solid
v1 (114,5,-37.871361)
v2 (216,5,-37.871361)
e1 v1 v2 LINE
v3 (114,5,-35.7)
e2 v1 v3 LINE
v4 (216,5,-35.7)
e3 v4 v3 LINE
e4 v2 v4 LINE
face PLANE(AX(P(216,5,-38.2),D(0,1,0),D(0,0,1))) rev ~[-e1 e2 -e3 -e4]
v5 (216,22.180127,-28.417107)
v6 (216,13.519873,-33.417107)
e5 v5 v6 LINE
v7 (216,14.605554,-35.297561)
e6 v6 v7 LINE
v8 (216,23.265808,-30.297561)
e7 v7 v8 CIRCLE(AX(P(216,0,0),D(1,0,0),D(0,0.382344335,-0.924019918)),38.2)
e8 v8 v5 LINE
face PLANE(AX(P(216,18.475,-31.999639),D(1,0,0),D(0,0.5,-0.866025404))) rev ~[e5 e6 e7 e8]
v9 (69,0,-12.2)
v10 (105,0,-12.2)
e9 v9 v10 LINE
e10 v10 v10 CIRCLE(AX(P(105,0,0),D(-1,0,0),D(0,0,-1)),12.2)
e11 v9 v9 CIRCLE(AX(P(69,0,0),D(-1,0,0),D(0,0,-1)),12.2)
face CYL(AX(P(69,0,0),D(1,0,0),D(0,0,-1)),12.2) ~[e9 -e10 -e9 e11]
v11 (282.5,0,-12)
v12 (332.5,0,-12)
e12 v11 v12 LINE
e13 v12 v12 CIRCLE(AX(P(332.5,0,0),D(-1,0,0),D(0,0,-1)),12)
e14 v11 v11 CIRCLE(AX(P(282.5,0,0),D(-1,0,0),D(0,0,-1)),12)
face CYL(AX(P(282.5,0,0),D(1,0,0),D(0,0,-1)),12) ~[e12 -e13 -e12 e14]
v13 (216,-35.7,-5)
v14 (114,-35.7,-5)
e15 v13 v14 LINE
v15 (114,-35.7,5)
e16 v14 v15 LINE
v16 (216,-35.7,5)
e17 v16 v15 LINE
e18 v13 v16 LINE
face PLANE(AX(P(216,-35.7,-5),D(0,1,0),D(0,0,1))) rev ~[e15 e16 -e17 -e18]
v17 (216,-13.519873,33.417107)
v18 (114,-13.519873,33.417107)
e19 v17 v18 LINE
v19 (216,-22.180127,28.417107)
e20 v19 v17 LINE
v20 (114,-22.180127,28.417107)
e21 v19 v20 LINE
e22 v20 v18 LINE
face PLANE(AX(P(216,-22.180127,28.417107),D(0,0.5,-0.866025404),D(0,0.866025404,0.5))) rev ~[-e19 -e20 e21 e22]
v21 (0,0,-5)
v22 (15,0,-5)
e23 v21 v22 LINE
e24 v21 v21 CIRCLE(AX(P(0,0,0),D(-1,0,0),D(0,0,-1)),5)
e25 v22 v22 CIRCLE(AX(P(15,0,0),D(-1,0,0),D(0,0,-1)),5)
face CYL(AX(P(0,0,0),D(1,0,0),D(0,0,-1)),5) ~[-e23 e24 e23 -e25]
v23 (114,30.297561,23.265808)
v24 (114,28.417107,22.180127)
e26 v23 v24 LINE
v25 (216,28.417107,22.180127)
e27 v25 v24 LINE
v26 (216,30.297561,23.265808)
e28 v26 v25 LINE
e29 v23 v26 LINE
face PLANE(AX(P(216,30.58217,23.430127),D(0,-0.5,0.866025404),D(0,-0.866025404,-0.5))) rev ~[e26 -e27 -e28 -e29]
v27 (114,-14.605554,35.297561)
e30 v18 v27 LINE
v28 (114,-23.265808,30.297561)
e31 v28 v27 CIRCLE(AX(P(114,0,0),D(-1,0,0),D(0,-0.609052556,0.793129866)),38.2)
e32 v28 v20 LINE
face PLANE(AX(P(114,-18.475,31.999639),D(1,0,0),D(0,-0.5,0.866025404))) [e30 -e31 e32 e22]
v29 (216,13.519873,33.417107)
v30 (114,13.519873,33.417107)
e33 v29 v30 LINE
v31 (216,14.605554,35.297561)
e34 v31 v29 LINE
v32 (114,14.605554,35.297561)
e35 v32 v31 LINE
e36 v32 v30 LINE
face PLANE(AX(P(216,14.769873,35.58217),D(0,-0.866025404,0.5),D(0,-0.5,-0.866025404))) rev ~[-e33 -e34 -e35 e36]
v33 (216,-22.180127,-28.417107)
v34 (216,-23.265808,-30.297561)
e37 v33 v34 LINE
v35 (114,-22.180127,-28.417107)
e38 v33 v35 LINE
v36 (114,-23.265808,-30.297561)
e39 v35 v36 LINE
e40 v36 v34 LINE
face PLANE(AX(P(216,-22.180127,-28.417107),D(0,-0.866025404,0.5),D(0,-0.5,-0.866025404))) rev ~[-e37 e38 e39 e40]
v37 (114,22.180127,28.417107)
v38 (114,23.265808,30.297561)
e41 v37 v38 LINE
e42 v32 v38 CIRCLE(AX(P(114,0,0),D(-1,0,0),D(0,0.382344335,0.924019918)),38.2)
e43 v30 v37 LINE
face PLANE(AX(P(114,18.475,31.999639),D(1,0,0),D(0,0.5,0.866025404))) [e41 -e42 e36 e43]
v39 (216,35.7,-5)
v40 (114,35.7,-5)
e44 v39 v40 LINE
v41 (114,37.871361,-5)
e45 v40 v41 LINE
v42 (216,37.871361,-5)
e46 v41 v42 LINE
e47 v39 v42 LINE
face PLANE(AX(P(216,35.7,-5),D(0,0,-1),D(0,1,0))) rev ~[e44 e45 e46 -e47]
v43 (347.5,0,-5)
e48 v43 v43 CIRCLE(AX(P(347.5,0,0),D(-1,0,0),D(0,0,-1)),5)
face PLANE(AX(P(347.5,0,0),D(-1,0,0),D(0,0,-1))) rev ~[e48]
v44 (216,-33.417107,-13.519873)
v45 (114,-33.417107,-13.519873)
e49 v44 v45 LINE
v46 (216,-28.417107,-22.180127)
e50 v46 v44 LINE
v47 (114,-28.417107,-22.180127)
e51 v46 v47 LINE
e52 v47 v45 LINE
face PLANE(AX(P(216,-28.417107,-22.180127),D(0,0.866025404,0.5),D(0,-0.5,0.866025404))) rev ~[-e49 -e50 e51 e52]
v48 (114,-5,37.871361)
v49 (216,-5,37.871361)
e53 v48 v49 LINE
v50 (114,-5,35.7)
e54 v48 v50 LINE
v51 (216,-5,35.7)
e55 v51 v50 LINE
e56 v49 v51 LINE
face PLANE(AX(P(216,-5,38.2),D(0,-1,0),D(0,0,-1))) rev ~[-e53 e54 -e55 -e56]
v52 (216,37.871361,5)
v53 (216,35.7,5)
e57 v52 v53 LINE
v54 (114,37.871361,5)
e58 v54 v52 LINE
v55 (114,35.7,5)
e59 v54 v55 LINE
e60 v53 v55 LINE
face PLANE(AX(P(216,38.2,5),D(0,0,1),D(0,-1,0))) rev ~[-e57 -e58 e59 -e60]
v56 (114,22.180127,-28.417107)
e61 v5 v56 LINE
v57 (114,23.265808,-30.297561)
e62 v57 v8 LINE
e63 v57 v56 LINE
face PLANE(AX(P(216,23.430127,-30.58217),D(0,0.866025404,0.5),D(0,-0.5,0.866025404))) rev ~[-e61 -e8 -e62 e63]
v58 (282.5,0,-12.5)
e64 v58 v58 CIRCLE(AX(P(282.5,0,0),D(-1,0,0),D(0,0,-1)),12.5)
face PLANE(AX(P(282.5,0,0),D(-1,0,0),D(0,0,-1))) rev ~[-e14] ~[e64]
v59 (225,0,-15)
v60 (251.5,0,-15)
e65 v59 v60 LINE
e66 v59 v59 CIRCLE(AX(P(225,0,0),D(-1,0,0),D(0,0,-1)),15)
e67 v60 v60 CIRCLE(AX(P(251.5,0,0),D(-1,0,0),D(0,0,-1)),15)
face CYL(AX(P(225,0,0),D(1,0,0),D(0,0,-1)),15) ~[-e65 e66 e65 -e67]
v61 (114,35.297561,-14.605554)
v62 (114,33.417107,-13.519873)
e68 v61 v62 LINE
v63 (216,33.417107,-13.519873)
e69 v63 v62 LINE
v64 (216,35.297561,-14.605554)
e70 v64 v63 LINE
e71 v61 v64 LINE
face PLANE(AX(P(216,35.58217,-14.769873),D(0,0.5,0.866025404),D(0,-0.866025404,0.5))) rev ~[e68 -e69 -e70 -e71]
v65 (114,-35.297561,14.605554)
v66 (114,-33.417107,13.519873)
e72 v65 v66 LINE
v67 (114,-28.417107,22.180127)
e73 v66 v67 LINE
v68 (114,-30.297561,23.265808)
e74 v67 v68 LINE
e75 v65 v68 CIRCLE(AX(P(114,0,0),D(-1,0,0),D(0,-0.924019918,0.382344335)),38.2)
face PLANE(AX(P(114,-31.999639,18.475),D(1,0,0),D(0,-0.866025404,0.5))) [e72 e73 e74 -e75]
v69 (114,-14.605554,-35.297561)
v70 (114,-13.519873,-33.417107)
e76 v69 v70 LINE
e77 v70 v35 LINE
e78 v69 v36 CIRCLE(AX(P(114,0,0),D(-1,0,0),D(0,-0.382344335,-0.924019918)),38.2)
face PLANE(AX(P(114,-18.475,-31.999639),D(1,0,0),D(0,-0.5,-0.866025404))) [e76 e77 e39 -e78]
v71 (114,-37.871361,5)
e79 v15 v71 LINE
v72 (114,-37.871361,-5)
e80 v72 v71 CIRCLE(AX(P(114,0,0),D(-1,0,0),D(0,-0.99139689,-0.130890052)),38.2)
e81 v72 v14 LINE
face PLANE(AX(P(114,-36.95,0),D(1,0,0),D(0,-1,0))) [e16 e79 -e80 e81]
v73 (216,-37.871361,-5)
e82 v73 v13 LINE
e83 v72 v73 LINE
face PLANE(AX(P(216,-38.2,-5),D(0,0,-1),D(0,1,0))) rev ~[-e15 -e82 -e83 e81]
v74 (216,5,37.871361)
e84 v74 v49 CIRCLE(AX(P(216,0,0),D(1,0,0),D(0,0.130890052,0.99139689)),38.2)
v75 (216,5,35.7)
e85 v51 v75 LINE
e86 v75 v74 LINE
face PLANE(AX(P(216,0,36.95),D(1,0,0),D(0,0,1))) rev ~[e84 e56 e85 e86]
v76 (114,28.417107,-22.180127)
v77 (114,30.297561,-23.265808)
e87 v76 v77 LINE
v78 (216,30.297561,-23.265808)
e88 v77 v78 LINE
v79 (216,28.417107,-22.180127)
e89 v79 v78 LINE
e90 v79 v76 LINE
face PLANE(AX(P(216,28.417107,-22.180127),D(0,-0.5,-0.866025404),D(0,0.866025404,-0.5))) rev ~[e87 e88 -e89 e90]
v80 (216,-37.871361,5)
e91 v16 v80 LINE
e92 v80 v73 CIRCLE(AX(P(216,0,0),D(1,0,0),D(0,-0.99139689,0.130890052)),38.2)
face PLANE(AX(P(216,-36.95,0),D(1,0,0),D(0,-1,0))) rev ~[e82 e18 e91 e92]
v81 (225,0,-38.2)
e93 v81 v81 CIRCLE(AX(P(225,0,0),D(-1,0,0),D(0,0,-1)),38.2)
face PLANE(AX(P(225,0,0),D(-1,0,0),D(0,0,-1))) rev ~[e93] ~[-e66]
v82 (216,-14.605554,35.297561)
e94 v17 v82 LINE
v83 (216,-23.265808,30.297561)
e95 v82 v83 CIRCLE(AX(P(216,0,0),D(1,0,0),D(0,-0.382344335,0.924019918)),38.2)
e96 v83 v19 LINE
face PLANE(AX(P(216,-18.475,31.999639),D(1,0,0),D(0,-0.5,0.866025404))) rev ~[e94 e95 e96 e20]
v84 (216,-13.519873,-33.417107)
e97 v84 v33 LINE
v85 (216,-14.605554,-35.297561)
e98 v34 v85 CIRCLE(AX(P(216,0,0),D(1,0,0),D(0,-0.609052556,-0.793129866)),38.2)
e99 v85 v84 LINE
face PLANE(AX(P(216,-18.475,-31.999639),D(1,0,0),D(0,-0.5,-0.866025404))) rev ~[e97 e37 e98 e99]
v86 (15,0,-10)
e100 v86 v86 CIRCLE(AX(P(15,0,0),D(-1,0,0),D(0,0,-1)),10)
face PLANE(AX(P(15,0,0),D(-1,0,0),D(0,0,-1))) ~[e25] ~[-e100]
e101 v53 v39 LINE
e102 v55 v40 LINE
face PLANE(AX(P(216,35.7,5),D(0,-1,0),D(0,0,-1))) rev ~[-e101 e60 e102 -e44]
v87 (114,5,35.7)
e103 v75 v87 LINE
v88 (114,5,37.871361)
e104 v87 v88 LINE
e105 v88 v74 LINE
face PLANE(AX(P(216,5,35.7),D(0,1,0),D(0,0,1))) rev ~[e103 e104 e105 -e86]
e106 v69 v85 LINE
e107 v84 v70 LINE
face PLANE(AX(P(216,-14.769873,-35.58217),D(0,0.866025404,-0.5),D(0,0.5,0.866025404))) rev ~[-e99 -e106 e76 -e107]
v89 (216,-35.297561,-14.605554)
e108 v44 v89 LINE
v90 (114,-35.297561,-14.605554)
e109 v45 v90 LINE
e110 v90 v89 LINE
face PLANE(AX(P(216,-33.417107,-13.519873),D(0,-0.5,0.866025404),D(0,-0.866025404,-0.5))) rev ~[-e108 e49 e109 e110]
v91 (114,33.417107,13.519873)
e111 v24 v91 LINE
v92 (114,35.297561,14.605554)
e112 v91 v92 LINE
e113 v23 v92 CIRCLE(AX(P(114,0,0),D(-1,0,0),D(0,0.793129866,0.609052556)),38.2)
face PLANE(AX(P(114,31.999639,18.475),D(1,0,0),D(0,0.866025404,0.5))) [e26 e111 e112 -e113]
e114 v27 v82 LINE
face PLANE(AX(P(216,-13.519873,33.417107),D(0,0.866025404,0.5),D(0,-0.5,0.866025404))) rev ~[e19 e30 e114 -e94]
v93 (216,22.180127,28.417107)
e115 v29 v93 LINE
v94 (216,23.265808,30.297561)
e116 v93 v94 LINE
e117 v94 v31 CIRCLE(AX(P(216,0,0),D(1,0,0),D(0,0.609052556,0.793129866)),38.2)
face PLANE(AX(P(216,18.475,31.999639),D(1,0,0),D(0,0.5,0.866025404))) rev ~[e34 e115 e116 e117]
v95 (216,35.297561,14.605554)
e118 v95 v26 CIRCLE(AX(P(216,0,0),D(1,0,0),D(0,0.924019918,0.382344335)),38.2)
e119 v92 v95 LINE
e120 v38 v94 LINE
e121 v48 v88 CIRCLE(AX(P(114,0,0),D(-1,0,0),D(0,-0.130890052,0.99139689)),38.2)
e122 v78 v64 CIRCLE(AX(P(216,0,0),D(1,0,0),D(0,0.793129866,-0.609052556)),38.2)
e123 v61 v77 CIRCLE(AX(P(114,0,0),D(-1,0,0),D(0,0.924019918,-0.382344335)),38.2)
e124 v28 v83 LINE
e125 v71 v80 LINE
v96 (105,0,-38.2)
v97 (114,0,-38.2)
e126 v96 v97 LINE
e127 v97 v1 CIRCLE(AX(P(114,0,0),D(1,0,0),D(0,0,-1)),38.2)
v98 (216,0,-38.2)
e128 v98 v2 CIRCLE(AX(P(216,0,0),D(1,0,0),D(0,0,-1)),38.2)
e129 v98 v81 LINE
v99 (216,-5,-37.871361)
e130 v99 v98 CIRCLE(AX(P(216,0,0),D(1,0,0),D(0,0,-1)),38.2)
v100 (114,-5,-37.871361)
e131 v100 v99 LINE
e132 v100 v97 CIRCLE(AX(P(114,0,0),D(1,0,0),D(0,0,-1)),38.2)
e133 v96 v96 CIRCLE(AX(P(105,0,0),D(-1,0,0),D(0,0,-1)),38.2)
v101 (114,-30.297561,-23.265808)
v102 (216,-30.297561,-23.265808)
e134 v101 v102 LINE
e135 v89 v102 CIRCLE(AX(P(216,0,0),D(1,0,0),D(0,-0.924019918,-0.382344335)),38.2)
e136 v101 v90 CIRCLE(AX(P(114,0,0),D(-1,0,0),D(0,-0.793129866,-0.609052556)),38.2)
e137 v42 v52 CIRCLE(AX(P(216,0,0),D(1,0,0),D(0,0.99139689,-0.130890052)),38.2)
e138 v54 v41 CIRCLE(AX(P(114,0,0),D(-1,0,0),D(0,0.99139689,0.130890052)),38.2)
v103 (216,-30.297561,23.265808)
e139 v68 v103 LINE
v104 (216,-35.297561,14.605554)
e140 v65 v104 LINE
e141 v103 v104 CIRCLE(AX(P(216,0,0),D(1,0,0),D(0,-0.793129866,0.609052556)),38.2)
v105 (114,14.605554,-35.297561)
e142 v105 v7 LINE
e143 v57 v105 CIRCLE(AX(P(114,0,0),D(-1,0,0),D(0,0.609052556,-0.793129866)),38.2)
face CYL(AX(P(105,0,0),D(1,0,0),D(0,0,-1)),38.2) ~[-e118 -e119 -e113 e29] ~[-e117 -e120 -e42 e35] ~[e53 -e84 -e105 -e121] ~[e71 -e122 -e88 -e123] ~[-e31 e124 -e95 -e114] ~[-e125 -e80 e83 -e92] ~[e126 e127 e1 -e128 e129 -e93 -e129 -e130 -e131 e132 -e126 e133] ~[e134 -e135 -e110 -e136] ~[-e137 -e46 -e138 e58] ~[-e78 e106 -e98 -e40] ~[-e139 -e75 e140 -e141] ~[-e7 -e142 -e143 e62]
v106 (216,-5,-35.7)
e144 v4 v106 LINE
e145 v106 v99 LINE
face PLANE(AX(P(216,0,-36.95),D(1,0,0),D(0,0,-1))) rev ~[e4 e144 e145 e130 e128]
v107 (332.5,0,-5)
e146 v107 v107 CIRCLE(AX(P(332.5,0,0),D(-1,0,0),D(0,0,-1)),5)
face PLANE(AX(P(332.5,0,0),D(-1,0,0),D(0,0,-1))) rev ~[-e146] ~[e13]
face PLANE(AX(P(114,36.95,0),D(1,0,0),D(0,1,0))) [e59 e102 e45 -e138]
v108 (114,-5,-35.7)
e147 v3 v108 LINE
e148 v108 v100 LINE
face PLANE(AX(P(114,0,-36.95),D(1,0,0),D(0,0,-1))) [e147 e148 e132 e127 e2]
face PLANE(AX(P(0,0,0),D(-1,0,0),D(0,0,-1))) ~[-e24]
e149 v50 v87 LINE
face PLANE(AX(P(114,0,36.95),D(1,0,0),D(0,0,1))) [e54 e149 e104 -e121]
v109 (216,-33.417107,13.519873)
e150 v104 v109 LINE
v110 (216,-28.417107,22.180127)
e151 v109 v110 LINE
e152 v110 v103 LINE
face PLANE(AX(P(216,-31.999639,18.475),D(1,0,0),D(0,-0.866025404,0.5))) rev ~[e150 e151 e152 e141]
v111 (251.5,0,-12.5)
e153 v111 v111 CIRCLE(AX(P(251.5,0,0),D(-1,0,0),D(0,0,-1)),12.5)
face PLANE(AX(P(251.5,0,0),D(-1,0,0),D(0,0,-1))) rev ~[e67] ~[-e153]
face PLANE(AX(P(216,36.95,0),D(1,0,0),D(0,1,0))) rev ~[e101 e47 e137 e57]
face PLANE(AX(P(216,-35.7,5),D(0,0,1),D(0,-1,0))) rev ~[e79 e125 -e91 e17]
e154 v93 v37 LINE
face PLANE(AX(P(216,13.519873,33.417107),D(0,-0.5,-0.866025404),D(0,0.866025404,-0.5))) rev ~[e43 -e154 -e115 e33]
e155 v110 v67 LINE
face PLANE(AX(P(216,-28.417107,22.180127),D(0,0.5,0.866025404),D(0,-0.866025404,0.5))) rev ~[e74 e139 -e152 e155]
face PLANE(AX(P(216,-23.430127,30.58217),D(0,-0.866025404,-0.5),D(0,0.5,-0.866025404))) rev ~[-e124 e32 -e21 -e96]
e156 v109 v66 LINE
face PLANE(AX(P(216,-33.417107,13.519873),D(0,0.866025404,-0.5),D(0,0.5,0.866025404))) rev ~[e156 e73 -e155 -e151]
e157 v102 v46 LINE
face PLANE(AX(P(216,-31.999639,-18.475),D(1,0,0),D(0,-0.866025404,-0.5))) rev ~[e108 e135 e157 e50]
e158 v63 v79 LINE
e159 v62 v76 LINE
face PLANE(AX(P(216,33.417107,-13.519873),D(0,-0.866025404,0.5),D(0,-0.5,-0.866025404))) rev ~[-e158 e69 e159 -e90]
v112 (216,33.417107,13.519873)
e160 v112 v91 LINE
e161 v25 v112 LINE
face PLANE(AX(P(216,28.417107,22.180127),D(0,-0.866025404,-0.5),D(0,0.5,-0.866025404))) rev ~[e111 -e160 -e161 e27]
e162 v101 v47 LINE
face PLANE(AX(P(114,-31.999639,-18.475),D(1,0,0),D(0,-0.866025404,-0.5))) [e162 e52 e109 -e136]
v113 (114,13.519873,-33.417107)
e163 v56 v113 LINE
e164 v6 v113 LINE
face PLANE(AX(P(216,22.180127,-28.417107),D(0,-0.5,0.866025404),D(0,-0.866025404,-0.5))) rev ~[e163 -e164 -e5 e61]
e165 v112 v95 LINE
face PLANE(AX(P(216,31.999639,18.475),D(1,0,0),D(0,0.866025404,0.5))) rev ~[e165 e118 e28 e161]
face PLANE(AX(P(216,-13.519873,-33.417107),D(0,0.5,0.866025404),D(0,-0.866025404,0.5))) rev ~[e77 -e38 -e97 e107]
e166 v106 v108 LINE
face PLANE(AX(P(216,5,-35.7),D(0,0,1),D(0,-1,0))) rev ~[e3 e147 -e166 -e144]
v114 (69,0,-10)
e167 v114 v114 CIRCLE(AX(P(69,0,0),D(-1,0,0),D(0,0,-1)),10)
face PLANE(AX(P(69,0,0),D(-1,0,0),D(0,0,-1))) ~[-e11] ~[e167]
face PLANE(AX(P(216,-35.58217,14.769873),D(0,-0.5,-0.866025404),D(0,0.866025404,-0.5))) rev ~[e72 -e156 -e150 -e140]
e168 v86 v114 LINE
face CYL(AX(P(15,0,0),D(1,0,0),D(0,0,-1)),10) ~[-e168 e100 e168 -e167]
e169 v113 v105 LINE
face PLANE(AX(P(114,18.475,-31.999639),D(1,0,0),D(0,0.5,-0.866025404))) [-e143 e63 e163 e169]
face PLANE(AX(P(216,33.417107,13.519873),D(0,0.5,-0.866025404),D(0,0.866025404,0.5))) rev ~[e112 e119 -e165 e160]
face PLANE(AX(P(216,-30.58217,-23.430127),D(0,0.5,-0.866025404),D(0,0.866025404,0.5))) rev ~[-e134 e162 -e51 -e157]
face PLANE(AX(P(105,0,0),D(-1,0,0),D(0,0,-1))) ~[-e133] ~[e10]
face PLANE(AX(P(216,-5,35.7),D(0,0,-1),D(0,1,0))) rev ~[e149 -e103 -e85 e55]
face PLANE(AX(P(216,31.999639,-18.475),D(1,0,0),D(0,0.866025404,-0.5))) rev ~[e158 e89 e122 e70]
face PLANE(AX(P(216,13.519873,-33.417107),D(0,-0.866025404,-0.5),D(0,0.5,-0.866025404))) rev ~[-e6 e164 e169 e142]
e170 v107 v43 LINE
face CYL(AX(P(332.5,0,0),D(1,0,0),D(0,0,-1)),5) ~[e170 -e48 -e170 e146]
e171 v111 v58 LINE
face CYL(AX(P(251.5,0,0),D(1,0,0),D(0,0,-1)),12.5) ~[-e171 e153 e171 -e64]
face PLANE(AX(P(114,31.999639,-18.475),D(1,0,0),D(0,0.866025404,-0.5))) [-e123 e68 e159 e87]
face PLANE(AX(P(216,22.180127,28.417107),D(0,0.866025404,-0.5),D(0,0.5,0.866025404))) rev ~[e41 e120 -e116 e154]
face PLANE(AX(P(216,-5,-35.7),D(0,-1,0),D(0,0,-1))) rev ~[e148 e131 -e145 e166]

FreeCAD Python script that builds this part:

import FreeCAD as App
import Part
import Sketcher
from FreeCAD import Vector
Q = App.Units.Quantity


def add_polygon(sketch, points):
    """Adds a closed chain of lines whose ends are joined by coincident constraints."""
    first, n = sketch.GeometryCount, len(points)
    for a, b in zip(points, points[1:] + points[:1]):
        sketch.addGeometry(Part.LineSegment(App.Vector(*a, 0), App.Vector(*b, 0)), False)
    for i in range(n):
        sketch.addConstraint(Sketcher.Constraint("Coincident", first + i, 2, first + (i + 1) % n, 1))

doc = App.newDocument("Part")
params = doc.addObject("Spreadsheet::Sheet", "Params")
for row, (alias, value) in enumerate([
    ("sketch1_width", "15 mm"),
    ("sketch1_width2", "50 mm"),
    ("sketch1_width3", "31 mm"),
    ("sketch1_width4", "120 mm"),
    ("sketch1_width5", "36 mm"),
    ("revolution_angle", "360 deg"),
    ("sketch2_width", "10 mm"),
    ("sketch2_height", "2.5 mm"),
    ("pocket1_length", "102 mm"),
], start=1):
    params.set(f"A{row}", alias)
    params.set(f"B{row}", "=" + value)
    params.setAlias(f"B{row}", alias)

body = doc.addObject("PartDesign::Body", "Body")

sketch1 = body.newObject("Sketcher::SketchObject", "Sketch")
sketch1.AttachmentSupport = (doc.getObject("XY_Plane"), [""])
sketch1.MapMode = "FlatFace"
add_polygon(sketch1, [(0, 5), (0, 0), (347.5, 0), (347.5, 5), (332.5, 5), (332.5, 12), (282.5, 12), (282.5, 12.5), (251.5, 12.5), (251.5, 15), (225, 15), (225, 38.2), (105, 38.2), (105, 12.2), (69, 12.2), (69, 10), (15, 10), (15, 5)])
sketch1.addConstraint([
    Sketcher.Constraint("Vertical", 0),
    Sketcher.Constraint("Horizontal", 1),
    Sketcher.Constraint("Vertical", 2),
    Sketcher.Constraint("Horizontal", 3),
    Sketcher.Constraint("Vertical", 4),
    Sketcher.Constraint("Horizontal", 5),
    Sketcher.Constraint("Vertical", 6),
    Sketcher.Constraint("Horizontal", 7),
    Sketcher.Constraint("Vertical", 8),
    Sketcher.Constraint("Horizontal", 9),
    Sketcher.Constraint("Vertical", 10),
    Sketcher.Constraint("Horizontal", 11),
    Sketcher.Constraint("Vertical", 12),
    Sketcher.Constraint("Horizontal", 13),
    Sketcher.Constraint("Vertical", 14),
    Sketcher.Constraint("Horizontal", 15),
    Sketcher.Constraint("Vertical", 16),
    Sketcher.Constraint("Horizontal", 17),
    Sketcher.Constraint("Coincident", 0, 2, -1, 1),
    Sketcher.Constraint("Horizontal", 3, 2, 16, 2),
    Sketcher.Constraint("Equal", 3, 17),
    Sketcher.Constraint("Equal", 2, 16),
    Sketcher.Constraint("DistanceX", 3, 2, 3, 1, Q("15 mm")),
    Sketcher.Constraint("DistanceX", 5, 2, 5, 1, Q("50 mm")),
    Sketcher.Constraint("DistanceX", 7, 2, 7, 1, Q("31 mm")),
    Sketcher.Constraint("DistanceX", 11, 2, 11, 1, Q("120 mm")),
    Sketcher.Constraint("DistanceX", 13, 2, 13, 1, Q("36 mm")),
    Sketcher.Constraint("DistanceX", 15, 2, 15, 1, Q("54 mm")),
    Sketcher.Constraint("DistanceY", 0, 2, 0, 1, Q("5 mm")),
    Sketcher.Constraint("DistanceY", 4, 1, 4, 2, Q("7 mm")),
    Sketcher.Constraint("DistanceY", 12, 2, 12, 1, Q("26 mm")),
    Sketcher.Constraint("DistanceX", 1, 1, 1, 2, Q("347.5 mm")),
    Sketcher.Constraint("DistanceY", 6, 1, 6, 2, Q("0.5 mm")),
    Sketcher.Constraint("DistanceY", 8, 1, 8, 2, Q("2.5 mm")),
    Sketcher.Constraint("DistanceY", 10, 1, 10, 2, Q("23.2 mm")),
])
sketch1.setExpression("Constraints[40]", "Params.sketch1_width")
sketch1.setExpression("Constraints[41]", "Params.sketch1_width2")
sketch1.setExpression("Constraints[42]", "Params.sketch1_width3")
sketch1.setExpression("Constraints[43]", "Params.sketch1_width4")
sketch1.setExpression("Constraints[44]", "Params.sketch1_width5")
revolution = body.newObject("PartDesign::Revolution", "Revolution")
revolution.Profile = sketch1
revolution.ReferenceAxis = (sketch1, ["H_Axis"])
revolution.setExpression("Angle", "Params.revolution_angle")

sketch2 = body.newObject("Sketcher::SketchObject", "Sketch001")
sketch2.AttachmentSupport = (doc.getObject("YZ_Plane"), [""])
sketch2.MapMode = "FlatFace"
sketch2.AttachmentOffset = App.Placement(Vector(0, 0, 216), App.Rotation())
add_polygon(sketch2, [(5, -38.2), (5, -35.7), (-5, -35.7), (-5, -38.2)])
sketch2.addConstraint([
    Sketcher.Constraint("Vertical", 0),
    Sketcher.Constraint("Horizontal", 1),
    Sketcher.Constraint("Vertical", 2),
    Sketcher.Constraint("Horizontal", 3),
    Sketcher.Constraint("DistanceX", 1, 2, 1, 1, Q("10 mm")),
    Sketcher.Constraint("DistanceY", 0, 1, 0, 2, Q("2.5 mm")),
    Sketcher.Constraint("DistanceX", -1, 1, 0, 2, Q("5 mm")),
    Sketcher.Constraint("DistanceY", 0, 2, -1, 1, Q("35.7 mm")),
])
sketch2.setExpression("Constraints[8]", "Params.sketch2_width")
sketch2.setExpression("Constraints[9]", "Params.sketch2_height")
pocket1 = body.newObject("PartDesign::Pocket", "Pocket")
pocket1.Profile = sketch2
pocket1.setExpression("Length", "Params.pocket1_length")
doc.recompute()

polarpattern = body.newObject("PartDesign::PolarPattern", "PolarPattern")
polarpattern.Originals = [pocket1]
polarpattern.Axis = (doc.getObject("X_Axis"), [""])
polarpattern.Angle = 360
polarpattern.Occurrences = 12
body.Tip = polarpattern

doc.recompute()
